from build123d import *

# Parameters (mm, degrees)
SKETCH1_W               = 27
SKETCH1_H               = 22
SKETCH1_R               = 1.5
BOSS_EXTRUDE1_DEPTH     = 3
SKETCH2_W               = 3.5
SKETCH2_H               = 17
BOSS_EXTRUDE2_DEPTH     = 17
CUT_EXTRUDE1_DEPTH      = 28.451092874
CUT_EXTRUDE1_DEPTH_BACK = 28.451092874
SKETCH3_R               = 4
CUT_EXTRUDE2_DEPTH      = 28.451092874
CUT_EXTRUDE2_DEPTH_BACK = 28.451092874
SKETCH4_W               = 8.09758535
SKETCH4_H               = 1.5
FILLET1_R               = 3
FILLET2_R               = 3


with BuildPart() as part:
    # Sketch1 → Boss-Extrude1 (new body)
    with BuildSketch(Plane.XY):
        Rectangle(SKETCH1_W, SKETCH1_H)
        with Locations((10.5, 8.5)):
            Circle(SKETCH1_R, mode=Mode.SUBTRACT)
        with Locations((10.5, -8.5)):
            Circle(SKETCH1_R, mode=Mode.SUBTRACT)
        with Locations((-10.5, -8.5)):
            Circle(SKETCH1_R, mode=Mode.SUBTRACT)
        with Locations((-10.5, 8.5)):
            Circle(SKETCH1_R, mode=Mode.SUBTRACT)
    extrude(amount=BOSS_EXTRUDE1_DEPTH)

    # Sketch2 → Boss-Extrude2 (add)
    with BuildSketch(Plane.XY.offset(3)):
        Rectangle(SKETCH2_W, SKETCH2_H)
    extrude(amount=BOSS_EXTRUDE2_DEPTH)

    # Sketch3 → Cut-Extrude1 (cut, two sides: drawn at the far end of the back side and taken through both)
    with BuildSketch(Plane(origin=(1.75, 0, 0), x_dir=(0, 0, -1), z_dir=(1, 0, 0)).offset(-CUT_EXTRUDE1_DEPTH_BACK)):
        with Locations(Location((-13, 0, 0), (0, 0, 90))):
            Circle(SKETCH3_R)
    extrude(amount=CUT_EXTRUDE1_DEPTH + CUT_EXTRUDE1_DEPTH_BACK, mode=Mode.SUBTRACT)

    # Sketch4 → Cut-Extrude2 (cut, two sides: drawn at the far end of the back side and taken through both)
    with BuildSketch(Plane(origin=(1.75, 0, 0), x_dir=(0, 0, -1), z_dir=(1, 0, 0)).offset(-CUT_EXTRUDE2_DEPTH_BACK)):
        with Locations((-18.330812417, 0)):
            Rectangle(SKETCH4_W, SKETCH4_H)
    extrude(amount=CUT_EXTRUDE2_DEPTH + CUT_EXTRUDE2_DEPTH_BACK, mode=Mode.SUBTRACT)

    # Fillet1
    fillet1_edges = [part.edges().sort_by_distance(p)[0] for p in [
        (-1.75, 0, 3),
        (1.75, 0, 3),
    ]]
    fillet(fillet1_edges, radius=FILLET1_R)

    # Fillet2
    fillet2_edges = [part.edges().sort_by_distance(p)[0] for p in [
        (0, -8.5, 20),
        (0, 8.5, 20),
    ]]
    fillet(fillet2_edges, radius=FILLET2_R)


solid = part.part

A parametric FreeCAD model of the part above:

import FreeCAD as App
import Part
import Sketcher


def edges_at(feature, points):
    """Names of the edges that pass closest to the given points."""
    edges = feature.Shape.Edges
    near = lambda p: min(range(len(edges)), key=lambda i: edges[i].distToShape(Part.Vertex(*p))[0])
    return sorted({f"Edge{near(p) + 1}" for p in points})

doc = App.newDocument("Part")
params = doc.addObject("Spreadsheet::Sheet", "Params")
for row, (alias, value) in enumerate([
    ("sketch1_diameter", "3 mm"),
    ("sketch1_width", "27 mm"),
    ("sketch1_height", "22 mm"),
    ("pad1_length", "3 mm"),
    ("sketch2_height", "17 mm"),
    ("sketch2_width", "3.5 mm"),
    ("pad2_length", "17 mm"),
    ("sketch3_diameter", "8 mm"),
    ("sketch4_width", "1.5 mm"),
    ("fillet_radius", "3 mm"),
    ("fillet2_radius", "3 mm"),
], start=1):
    params.set(f"A{row}", alias)
    params.set(f"B{row}", "=" + value)
    params.setAlias(f"B{row}", alias)

body = doc.addObject("PartDesign::Body", "Body")

# Sketch on XY plane
sketch1 = doc.addObject("Sketcher::SketchObject", "Sketch")
body.addObject(sketch1)
sketch1.AttachmentSupport = (doc.XY_Plane, [""])
sketch1.MapMode = "FlatFace"
sketch1.addGeometry(Part.LineSegment(App.Vector(-13.5, 11, 0), App.Vector(-13.5, -11, 0)), False)
sketch1.addGeometry(Part.LineSegment(App.Vector(-13.5, -11, 0), App.Vector(13.5, -11, 0)), False)
sketch1.addGeometry(Part.LineSegment(App.Vector(13.5, -11, 0), App.Vector(13.5, 11, 0)), False)
sketch1.addGeometry(Part.LineSegment(App.Vector(13.5, 11, 0), App.Vector(-13.5, 11, 0)), False)
sketch1.addGeometry(Part.Circle(App.Vector(-10.5, -8.5, 0), App.Vector(0, 0, 1), 1.5), False)
sketch1.addGeometry(Part.Circle(App.Vector(10.5, -8.5, 0), App.Vector(0, 0, 1), 1.5), False)
sketch1.addGeometry(Part.Circle(App.Vector(-10.5, 8.5, 0), App.Vector(0, 0, 1), 1.5), False)
sketch1.addGeometry(Part.Circle(App.Vector(10.5, 8.5, 0), App.Vector(0, 0, 1), 1.5), False)
sketch1.addConstraint(Sketcher.Constraint("Coincident", 0, 2, 1, 1))
sketch1.addConstraint(Sketcher.Constraint("Coincident", 1, 2, 2, 1))
sketch1.addConstraint(Sketcher.Constraint("Coincident", 2, 2, 3, 1))
sketch1.addConstraint(Sketcher.Constraint("Coincident", 3, 2, 0, 1))
sketch1.addConstraint(Sketcher.Constraint("Vertical", 0))
sketch1.addConstraint(Sketcher.Constraint("Horizontal", 1))
sketch1.addConstraint(Sketcher.Constraint("Vertical", 2))
sketch1.addConstraint(Sketcher.Constraint("Horizontal", 3))
sketch1.addConstraint(Sketcher.Constraint("Equal", 4, 5))
sketch1.addConstraint(Sketcher.Constraint("Equal", 5, 6))
sketch1.addConstraint(Sketcher.Constraint("Equal", 6, 7))
sketch1.addConstraint(Sketcher.Constraint("Symmetric", 5, 3, 6, 3, -1, 1))
sketch1.addConstraint(Sketcher.Constraint("Symmetric", 4, 3, 7, 3, -1, 1))
sketch1.addConstraint(Sketcher.Constraint("Symmetric", 0, 2, 2, 2, -1, 1))
sketch1.addConstraint(Sketcher.Constraint("Symmetric", 4, 3, 5, 3, -2))
sketch1.addConstraint(Sketcher.Constraint("Diameter", 4, 3.0))
sketch1.addConstraint(Sketcher.Constraint("DistanceX", 1, 1, 1, 2, 27.0))
sketch1.addConstraint(Sketcher.Constraint("DistanceY", 0, 2, 0, 1, 22.0))
sketch1.addConstraint(Sketcher.Constraint("DistanceX", 4, 3, 5, 3, 21.0))
sketch1.addConstraint(Sketcher.Constraint("DistanceY", 4, 3, 6, 3, 17.0))
sketch1.setExpression("Constraints[15]", "Params.sketch1_diameter")
sketch1.setExpression("Constraints[16]", "Params.sketch1_width")
sketch1.setExpression("Constraints[17]", "Params.sketch1_height")
pad1 = doc.addObject("PartDesign::Pad", "Pad")
body.addObject(pad1)
pad1.Profile = sketch1
pad1.setExpression("Length", "Params.pad1_length")

# Sketch on XY plane
sketch2 = doc.addObject("Sketcher::SketchObject", "Sketch001")
body.addObject(sketch2)
sketch2.AttachmentSupport = (doc.XY_Plane, [""])
sketch2.MapMode = "FlatFace"
sketch2.AttachmentOffset = App.Placement(App.Vector(0, 0, 3), App.Rotation())
sketch2.addGeometry(Part.LineSegment(App.Vector(-1.8, 8.5, 0), App.Vector(-1.8, -8.5, 0)), False)
sketch2.addGeometry(Part.LineSegment(App.Vector(-1.8, -8.5, 0), App.Vector(1.8, -8.5, 0)), False)
sketch2.addGeometry(Part.LineSegment(App.Vector(1.8, -8.5, 0), App.Vector(1.8, 8.5, 0)), False)
sketch2.addGeometry(Part.LineSegment(App.Vector(1.8, 8.5, 0), App.Vector(-1.8, 8.5, 0)), False)
sketch2.addConstraint(Sketcher.Constraint("Coincident", 0, 2, 1, 1))
sketch2.addConstraint(Sketcher.Constraint("Coincident", 1, 2, 2, 1))
sketch2.addConstraint(Sketcher.Constraint("Coincident", 2, 2, 3, 1))
sketch2.addConstraint(Sketcher.Constraint("Coincident", 3, 2, 0, 1))
sketch2.addConstraint(Sketcher.Constraint("Vertical", 0))
sketch2.addConstraint(Sketcher.Constraint("Horizontal", 1))
sketch2.addConstraint(Sketcher.Constraint("Vertical", 2))
sketch2.addConstraint(Sketcher.Constraint("Horizontal", 3))
sketch2.addConstraint(Sketcher.Constraint("Symmetric", 0, 2, 2, 2, -1, 1))
sketch2.addConstraint(Sketcher.Constraint("DistanceY", 0, 2, 0, 1, 17.0))
sketch2.addConstraint(Sketcher.Constraint("DistanceX", 1, 1, 1, 2, 3.5))
sketch2.setExpression("Constraints[9]", "Params.sketch2_height")
sketch2.setExpression("Constraints[10]", "Params.sketch2_width")
pad2 = doc.addObject("PartDesign::Pad", "Pad001")
body.addObject(pad2)
pad2.Profile = sketch2
pad2.setExpression("Length", "Params.pad2_length")

# Sketch on YZ plane
sketch3 = doc.addObject("Sketcher::SketchObject", "Sketch002")
body.addObject(sketch3)
sketch3.AttachmentSupport = (doc.YZ_Plane, [""])
sketch3.MapMode = "FlatFace"
sketch3.AttachmentOffset = App.Placement(App.Vector(0, 0, 1.75), App.Rotation())
sketch3.addGeometry(Part.Circle(App.Vector(0, 13, 0), App.Vector(0, 0, 1), 4), False)
sketch3.addConstraint(Sketcher.Constraint("PointOnObject", 0, 3, -2))
sketch3.addConstraint(Sketcher.Constraint("Diameter", 0, 8.0))
sketch3.addConstraint(Sketcher.Constraint("DistanceY", -1, 1, 0, 3, 13.0))
sketch3.setExpression("Constraints[1]", "Params.sketch3_diameter")
pocket1 = doc.addObject("PartDesign::Pocket", "Pocket")
body.addObject(pocket1)
pocket1.Profile = sketch3
pocket1.Type = "ThroughAll"
pocket1.Midplane = True

# Sketch on YZ plane
sketch4 = doc.addObject("Sketcher::SketchObject", "Sketch003")
body.addObject(sketch4)
sketch4.AttachmentSupport = (doc.YZ_Plane, [""])
sketch4.MapMode = "FlatFace"
sketch4.AttachmentOffset = App.Placement(App.Vector(0, 0, 1.75), App.Rotation())
sketch4.addGeometry(Part.LineSegment(App.Vector(0.8, 22.4, 0), App.Vector(-0.8, 22.4, 0)), False)
sketch4.addGeometry(Part.LineSegment(App.Vector(-0.8, 22.4, 0), App.Vector(-0.8, 14.3, 0)), False)
sketch4.addGeometry(Part.LineSegment(App.Vector(-0.8, 14.3, 0), App.Vector(0.8, 14.3, 0)), False)
sketch4.addGeometry(Part.LineSegment(App.Vector(0.8, 14.3, 0), App.Vector(0.8, 22.4, 0)), False)
sketch4.addConstraint(Sketcher.Constraint("Coincident", 0, 2, 1, 1))
sketch4.addConstraint(Sketcher.Constraint("Coincident", 1, 2, 2, 1))
sketch4.addConstraint(Sketcher.Constraint("Coincident", 2, 2, 3, 1))
sketch4.addConstraint(Sketcher.Constraint("Coincident", 3, 2, 0, 1))
sketch4.addConstraint(Sketcher.Constraint("Horizontal", 0))
sketch4.addConstraint(Sketcher.Constraint("Vertical", 1))
sketch4.addConstraint(Sketcher.Constraint("Horizontal", 2))
sketch4.addConstraint(Sketcher.Constraint("Vertical", 3))
sketch4.addConstraint(Sketcher.Constraint("DistanceX", 0, 2, 0, 1, 1.5))
sketch4.addConstraint(Sketcher.Constraint("DistanceX", 0, 2, -1, 1, 0.75))
sketch4.addConstraint(Sketcher.Constraint("DistanceY", 1, 2, 1, 1, 8.097585))
sketch4.addConstraint(Sketcher.Constraint("DistanceY", -1, 1, 1, 2, 14.28202))
sketch4.setExpression("Constraints[8]", "Params.sketch4_width")
pocket2 = doc.addObject("PartDesign::Pocket", "Pocket001")
body.addObject(pocket2)
pocket2.Profile = sketch4
pocket2.Type = "ThroughAll"
pocket2.Midplane = True
doc.recompute()

fillet = doc.addObject("PartDesign::Fillet", "Fillet")
body.addObject(fillet)
fillet.Base = (pocket2, edges_at(pocket2, [(-1.75, 0, 3), (1.75, 0, 3)]))
fillet.setExpression("Radius", "Params.fillet_radius")
doc.recompute()

fillet2 = doc.addObject("PartDesign::Fillet", "Fillet001")
body.addObject(fillet2)
fillet2.Base = (fillet, edges_at(fillet, [(0, -8.5, 20), (0, 8.5, 20)]))
fillet2.setExpression("Radius", "Params.fillet2_radius")

doc.recompute()
